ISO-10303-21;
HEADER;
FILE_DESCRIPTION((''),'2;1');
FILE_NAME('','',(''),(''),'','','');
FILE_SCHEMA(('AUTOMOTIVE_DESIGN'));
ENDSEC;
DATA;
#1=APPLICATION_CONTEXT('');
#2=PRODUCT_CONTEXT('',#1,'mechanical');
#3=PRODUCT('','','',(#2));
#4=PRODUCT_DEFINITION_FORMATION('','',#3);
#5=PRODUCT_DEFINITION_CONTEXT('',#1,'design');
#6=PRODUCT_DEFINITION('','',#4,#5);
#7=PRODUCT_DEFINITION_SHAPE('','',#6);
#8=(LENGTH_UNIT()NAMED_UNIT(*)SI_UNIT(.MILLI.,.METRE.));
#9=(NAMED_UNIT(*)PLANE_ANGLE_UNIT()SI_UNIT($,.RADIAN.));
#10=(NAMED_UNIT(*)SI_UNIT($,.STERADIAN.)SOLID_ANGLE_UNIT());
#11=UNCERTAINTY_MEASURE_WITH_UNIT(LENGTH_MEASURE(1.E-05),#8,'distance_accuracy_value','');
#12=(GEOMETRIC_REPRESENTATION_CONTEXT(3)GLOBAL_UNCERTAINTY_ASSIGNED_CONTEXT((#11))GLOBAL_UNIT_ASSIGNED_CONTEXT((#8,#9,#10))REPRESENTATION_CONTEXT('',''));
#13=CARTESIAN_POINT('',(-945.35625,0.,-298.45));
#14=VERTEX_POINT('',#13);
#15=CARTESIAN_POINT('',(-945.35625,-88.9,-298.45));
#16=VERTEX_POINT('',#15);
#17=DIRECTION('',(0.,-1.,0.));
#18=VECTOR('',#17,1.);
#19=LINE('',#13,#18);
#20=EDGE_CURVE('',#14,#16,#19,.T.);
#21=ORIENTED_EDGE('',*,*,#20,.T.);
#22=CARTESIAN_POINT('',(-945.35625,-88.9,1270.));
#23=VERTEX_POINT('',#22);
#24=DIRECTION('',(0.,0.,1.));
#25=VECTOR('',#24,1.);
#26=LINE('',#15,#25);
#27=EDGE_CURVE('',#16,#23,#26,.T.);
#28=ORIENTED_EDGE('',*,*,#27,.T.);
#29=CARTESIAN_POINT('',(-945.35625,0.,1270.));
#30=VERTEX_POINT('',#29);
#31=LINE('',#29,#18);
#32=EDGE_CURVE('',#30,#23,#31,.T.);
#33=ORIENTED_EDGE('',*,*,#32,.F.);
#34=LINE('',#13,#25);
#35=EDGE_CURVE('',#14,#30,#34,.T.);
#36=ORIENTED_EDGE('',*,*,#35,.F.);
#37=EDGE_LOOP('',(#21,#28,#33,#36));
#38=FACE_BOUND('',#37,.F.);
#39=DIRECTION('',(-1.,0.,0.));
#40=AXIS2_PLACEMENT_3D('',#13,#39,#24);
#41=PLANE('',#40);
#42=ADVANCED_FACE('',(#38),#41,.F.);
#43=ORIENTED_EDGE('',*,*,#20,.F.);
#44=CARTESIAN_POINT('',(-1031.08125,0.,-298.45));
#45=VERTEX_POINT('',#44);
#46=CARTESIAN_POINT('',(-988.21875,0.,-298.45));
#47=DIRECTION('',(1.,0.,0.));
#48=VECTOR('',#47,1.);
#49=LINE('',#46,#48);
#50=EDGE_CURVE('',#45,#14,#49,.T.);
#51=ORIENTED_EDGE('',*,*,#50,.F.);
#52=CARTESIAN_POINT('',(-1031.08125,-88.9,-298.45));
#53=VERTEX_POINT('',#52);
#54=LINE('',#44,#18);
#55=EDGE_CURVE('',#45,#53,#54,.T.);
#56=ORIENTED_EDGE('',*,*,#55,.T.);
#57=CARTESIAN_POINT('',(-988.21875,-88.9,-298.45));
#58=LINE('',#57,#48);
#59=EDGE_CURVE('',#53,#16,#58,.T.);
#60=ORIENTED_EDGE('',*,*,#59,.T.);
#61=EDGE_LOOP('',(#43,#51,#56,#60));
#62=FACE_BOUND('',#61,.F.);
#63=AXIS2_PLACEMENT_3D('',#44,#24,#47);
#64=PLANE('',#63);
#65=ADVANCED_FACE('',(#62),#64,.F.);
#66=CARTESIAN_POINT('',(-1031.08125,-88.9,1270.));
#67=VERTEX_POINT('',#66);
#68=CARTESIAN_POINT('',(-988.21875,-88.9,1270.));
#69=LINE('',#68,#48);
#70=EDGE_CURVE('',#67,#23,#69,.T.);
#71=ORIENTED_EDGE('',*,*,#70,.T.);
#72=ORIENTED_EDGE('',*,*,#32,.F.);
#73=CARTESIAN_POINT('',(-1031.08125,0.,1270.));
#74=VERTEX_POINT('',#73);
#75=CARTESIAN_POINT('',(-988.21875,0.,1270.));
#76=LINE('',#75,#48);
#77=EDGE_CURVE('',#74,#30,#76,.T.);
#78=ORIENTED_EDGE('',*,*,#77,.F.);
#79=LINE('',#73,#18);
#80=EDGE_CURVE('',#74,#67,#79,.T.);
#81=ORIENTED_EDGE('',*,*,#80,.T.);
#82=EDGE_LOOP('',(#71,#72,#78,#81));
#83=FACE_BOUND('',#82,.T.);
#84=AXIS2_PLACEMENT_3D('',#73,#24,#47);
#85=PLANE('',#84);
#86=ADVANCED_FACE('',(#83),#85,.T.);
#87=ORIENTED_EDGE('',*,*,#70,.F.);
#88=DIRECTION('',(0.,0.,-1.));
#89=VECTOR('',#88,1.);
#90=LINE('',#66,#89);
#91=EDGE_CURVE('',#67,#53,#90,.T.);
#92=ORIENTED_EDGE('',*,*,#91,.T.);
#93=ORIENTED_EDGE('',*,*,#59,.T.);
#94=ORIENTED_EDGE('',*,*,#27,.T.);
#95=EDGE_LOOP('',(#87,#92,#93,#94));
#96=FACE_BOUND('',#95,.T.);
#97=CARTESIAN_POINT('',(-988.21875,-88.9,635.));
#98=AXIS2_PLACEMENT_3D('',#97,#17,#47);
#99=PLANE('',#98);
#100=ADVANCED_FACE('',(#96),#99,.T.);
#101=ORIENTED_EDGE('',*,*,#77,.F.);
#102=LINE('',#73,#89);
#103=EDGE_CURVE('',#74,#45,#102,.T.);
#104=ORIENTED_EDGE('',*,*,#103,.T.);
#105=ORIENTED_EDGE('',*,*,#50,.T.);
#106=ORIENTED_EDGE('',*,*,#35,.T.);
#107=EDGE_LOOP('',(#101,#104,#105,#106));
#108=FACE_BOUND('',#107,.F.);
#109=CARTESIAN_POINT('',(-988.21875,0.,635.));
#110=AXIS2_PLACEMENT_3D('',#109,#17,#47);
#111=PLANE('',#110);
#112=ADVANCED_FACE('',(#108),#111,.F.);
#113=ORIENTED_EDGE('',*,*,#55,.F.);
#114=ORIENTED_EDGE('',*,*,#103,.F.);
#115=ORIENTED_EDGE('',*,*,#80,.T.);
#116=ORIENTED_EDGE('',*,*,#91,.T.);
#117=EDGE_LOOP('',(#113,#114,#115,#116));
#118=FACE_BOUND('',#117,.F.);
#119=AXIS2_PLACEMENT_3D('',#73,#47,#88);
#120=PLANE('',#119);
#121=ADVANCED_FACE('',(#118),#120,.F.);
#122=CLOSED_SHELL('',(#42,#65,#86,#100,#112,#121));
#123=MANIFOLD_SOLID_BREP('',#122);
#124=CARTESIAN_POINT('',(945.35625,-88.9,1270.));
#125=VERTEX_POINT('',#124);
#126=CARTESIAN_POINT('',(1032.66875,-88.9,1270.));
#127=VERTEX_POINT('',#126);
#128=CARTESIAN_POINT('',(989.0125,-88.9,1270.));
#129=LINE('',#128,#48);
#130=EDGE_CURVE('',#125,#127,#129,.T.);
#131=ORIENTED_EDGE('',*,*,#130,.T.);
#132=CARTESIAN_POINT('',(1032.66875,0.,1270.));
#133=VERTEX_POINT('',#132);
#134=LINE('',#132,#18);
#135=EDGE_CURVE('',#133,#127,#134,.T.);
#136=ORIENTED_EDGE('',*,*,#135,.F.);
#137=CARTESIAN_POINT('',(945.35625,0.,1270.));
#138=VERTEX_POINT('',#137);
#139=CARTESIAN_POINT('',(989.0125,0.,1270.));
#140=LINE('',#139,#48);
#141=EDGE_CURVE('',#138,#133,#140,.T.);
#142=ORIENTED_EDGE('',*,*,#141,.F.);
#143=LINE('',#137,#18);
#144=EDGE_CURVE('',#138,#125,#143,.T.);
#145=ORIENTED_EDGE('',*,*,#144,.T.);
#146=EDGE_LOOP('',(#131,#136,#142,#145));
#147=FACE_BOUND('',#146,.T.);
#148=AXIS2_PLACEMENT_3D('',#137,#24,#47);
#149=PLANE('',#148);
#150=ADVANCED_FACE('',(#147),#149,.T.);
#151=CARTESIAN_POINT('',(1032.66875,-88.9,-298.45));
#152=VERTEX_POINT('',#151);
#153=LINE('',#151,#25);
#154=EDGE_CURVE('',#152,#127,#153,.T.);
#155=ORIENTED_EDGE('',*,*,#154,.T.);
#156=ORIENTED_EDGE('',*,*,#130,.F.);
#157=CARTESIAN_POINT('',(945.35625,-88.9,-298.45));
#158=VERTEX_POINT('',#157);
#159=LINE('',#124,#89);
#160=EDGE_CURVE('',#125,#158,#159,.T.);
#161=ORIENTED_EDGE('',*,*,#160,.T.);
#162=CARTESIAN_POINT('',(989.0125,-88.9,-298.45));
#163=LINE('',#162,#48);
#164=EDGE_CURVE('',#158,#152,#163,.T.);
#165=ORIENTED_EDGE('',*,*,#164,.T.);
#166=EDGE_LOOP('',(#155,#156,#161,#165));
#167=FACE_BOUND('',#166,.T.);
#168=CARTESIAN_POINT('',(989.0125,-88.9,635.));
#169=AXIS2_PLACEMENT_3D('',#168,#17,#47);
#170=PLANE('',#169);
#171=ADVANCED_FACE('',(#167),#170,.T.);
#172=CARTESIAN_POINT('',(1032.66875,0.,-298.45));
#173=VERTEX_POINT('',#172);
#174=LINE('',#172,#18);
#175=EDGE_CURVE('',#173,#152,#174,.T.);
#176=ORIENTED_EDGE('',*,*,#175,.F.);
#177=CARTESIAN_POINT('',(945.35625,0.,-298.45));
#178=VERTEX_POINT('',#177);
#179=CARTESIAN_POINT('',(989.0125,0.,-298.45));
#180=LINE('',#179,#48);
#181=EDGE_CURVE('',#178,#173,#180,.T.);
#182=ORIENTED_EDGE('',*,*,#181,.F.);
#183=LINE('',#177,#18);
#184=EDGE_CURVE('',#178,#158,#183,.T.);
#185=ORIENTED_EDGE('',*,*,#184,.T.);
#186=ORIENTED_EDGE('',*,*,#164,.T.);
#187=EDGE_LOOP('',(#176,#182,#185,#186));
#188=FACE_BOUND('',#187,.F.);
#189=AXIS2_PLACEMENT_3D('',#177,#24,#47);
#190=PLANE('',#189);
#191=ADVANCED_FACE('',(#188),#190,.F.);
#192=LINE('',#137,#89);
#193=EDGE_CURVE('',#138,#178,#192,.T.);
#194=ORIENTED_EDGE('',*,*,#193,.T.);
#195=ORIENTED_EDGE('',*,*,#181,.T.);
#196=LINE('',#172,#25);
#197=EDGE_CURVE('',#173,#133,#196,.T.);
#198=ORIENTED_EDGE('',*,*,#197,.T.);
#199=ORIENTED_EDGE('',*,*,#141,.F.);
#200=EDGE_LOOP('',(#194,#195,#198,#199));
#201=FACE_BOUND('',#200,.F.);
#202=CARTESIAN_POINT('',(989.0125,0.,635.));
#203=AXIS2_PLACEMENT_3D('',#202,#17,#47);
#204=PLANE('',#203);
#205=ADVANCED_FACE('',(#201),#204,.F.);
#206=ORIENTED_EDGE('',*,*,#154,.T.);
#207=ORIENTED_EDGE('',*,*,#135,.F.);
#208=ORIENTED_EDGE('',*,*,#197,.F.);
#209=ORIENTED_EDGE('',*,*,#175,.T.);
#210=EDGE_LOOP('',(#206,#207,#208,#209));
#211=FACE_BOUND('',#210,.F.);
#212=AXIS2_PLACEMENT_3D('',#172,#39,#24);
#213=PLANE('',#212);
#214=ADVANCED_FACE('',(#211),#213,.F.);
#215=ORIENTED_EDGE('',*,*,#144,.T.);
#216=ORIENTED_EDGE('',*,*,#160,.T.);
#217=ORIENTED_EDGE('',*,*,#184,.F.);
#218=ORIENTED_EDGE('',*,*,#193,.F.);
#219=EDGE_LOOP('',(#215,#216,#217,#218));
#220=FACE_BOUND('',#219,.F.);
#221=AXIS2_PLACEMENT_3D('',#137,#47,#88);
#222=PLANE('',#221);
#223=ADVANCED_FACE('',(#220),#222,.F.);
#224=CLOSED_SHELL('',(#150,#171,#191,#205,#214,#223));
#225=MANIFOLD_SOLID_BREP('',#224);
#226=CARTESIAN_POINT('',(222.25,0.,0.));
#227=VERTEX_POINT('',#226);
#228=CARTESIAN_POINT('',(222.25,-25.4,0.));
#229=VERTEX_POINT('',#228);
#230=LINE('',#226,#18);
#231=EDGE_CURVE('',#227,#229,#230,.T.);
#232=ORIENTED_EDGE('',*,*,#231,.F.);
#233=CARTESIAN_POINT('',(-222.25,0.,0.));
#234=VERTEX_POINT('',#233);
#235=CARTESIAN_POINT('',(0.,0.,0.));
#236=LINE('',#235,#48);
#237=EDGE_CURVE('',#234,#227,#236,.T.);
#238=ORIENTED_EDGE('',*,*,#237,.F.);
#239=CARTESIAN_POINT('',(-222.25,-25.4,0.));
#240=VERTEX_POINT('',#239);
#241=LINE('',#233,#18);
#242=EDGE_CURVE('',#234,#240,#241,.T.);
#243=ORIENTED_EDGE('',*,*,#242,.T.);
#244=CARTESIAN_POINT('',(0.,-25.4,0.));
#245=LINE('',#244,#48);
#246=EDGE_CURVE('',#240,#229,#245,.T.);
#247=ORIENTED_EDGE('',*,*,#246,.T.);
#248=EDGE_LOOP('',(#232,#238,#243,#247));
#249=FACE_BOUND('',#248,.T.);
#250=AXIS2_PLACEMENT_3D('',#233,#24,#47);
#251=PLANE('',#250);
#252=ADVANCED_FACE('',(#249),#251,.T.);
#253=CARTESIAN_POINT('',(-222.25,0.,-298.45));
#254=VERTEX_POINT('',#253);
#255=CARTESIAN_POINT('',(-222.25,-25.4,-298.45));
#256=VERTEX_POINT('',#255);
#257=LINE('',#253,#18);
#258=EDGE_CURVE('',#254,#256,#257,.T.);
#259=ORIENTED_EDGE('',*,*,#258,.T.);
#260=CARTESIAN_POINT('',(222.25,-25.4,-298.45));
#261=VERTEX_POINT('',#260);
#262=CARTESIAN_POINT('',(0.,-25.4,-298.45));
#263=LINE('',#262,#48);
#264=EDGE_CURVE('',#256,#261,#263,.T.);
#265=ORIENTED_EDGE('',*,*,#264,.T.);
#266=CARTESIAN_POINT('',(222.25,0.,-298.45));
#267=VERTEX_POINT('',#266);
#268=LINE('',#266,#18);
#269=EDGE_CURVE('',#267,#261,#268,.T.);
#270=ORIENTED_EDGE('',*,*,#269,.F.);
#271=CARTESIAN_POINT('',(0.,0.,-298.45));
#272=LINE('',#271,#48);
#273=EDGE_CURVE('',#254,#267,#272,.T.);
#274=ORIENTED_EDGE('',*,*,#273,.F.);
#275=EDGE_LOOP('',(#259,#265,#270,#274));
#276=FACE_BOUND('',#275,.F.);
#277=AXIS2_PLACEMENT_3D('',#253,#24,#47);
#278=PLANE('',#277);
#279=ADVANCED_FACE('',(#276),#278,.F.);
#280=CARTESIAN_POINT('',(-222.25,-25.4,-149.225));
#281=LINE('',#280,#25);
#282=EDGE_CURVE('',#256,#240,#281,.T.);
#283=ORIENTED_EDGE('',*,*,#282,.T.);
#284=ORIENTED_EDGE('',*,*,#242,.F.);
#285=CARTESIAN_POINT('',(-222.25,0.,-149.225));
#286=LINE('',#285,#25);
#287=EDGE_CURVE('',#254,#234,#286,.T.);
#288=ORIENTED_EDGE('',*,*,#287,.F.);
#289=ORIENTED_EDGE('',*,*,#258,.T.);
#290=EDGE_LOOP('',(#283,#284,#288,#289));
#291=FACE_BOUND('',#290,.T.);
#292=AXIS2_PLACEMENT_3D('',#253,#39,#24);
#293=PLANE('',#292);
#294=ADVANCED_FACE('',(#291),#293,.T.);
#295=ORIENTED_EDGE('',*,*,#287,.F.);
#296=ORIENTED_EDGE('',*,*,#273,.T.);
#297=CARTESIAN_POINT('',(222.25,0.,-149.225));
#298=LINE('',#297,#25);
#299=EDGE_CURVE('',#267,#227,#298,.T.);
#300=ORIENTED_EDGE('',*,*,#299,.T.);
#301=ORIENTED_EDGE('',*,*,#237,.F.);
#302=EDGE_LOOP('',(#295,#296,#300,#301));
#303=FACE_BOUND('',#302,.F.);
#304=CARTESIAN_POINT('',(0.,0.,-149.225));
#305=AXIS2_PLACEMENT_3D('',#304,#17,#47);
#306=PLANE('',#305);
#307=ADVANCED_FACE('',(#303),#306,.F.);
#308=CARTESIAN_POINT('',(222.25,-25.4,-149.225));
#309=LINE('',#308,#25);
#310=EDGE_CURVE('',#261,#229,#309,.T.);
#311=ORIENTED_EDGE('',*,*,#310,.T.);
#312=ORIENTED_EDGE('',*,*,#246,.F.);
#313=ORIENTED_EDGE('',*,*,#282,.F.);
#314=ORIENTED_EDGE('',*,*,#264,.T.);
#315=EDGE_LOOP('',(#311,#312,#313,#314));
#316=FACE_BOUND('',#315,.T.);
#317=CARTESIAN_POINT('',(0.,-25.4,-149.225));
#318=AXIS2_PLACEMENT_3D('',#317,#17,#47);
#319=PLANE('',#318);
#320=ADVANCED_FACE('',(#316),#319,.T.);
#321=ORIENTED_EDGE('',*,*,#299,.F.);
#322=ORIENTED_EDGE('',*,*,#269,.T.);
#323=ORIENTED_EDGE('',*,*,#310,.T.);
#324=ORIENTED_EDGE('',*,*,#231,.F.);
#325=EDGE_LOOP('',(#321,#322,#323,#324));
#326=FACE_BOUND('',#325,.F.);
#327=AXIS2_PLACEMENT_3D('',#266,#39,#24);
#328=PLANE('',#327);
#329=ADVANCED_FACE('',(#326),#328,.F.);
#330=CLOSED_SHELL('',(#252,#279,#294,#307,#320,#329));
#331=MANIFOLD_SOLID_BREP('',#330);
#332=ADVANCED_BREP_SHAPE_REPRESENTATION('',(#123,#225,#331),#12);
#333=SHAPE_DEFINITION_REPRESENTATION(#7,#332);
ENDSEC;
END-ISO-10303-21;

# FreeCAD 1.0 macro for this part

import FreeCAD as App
import Part
import Sketcher

V = App.Vector
Q = App.Units.Quantity

doc = App.newDocument("Part")
body = doc.addObject("PartDesign::Body", "Body")
body.AllowCompound = True

# Sketch on XZ plane
sketch1 = body.newObject("Sketcher::SketchObject", "Sketch")
sketch1.AttachmentSupport = (doc.getObject("XZ_Plane"), [""])
sketch1.MapMode = "FlatFace"
sketch1.addGeometry([
    Part.LineSegment(V(-1031, 1270, 0), V(-1031, -298, 0)),  # 0
    Part.LineSegment(V(-1031, -298, 0), V(-945, -298, 0)),  # 1
    Part.LineSegment(V(-945, -298, 0), V(-945, 1270, 0)),  # 2
    Part.LineSegment(V(-945, 1270, 0), V(-1031, 1270, 0)),  # 3
    Part.LineSegment(V(945, 1270, 0), V(945, -298, 0)),  # 4
    Part.LineSegment(V(945, -298, 0), V(1033, -298, 0)),  # 5
    Part.LineSegment(V(1033, -298, 0), V(1033, 1270, 0)),  # 6
    Part.LineSegment(V(1033, 1270, 0), V(945, 1270, 0)),  # 7
], False)
sketch1.addConstraint([
    Sketcher.Constraint("Coincident", 0, 2, 1, 1),
    Sketcher.Constraint("Coincident", 1, 2, 2, 1),
    Sketcher.Constraint("Coincident", 2, 2, 3, 1),
    Sketcher.Constraint("Coincident", 3, 2, 0, 1),
    Sketcher.Constraint("Coincident", 4, 2, 5, 1),
    Sketcher.Constraint("Coincident", 5, 2, 6, 1),
    Sketcher.Constraint("Coincident", 6, 2, 7, 1),
    Sketcher.Constraint("Coincident", 7, 2, 4, 1),
    Sketcher.Constraint("Vertical", 0),
    Sketcher.Constraint("Horizontal", 1),
    Sketcher.Constraint("Vertical", 2),
    Sketcher.Constraint("Horizontal", 3),
    Sketcher.Constraint("Vertical", 4),
    Sketcher.Constraint("Horizontal", 5),
    Sketcher.Constraint("Vertical", 6),
    Sketcher.Constraint("Horizontal", 7),
    Sketcher.Constraint("Symmetric", 1, 2, 4, 2, -2),
    Sketcher.Constraint("Horizontal", 3, 2, 6, 2),
    Sketcher.Constraint("DistanceY", -1, 1, 2, 2, Q("50 in")),
    Sketcher.Constraint("DistanceY", 0, 2, 0, 1, Q("61.75 in")),
    Sketcher.Constraint("DistanceX", 1, 1, 1, 2, Q("3.375 in")),
    Sketcher.Constraint("DistanceX", 5, 1, 5, 2, Q("3.4375 in")),
    Sketcher.Constraint("DistanceX", 0, 2, 5, 2, Q("81.25 in")),
])
pad1 = body.newObject("PartDesign::Pad", "Pad")
pad1.Profile = sketch1
pad1.Length = Q("3.5 in")
body2 = doc.addObject("PartDesign::Body", "Body001")

# Sketch on XZ plane
sketch2 = body2.newObject("Sketcher::SketchObject", "Sketch001")
sketch2.AttachmentSupport = (doc.getObject("XZ_Plane001"), [""])
sketch2.MapMode = "FlatFace"
sketch2.addGeometry([
    Part.LineSegment(V(-222, 0, 0), V(-222, -298, 0)),
    Part.LineSegment(V(-222, -298, 0), V(222, -298, 0)),
    Part.LineSegment(V(222, -298, 0), V(222, 0, 0)),
    Part.LineSegment(V(222, 0, 0), V(-222, 0, 0)),
], False)
sketch2.addConstraint([
    Sketcher.Constraint("Coincident", 0, 2, 1, 1),
    Sketcher.Constraint("Coincident", 1, 2, 2, 1),
    Sketcher.Constraint("Coincident", 2, 2, 3, 1),
    Sketcher.Constraint("Coincident", 3, 2, 0, 1),
    Sketcher.Constraint("Vertical", 0),
    Sketcher.Constraint("Horizontal", 1),
    Sketcher.Constraint("Vertical", 2),
    Sketcher.Constraint("Horizontal", 3),
    Sketcher.Constraint("Symmetric", 2, 2, 3, 2, -1, 1),
    Sketcher.Constraint("DistanceX", 1, 1, 1, 2, Q("17.5 in")),
    Sketcher.Constraint("DistanceY", 0, 2, 0, 1, Q("11.75 in")),
])
pad2 = body2.newObject("PartDesign::Pad", "Pad001")
pad2.Profile = sketch2
pad2.Length = Q("1 in")

doc.recompute()
